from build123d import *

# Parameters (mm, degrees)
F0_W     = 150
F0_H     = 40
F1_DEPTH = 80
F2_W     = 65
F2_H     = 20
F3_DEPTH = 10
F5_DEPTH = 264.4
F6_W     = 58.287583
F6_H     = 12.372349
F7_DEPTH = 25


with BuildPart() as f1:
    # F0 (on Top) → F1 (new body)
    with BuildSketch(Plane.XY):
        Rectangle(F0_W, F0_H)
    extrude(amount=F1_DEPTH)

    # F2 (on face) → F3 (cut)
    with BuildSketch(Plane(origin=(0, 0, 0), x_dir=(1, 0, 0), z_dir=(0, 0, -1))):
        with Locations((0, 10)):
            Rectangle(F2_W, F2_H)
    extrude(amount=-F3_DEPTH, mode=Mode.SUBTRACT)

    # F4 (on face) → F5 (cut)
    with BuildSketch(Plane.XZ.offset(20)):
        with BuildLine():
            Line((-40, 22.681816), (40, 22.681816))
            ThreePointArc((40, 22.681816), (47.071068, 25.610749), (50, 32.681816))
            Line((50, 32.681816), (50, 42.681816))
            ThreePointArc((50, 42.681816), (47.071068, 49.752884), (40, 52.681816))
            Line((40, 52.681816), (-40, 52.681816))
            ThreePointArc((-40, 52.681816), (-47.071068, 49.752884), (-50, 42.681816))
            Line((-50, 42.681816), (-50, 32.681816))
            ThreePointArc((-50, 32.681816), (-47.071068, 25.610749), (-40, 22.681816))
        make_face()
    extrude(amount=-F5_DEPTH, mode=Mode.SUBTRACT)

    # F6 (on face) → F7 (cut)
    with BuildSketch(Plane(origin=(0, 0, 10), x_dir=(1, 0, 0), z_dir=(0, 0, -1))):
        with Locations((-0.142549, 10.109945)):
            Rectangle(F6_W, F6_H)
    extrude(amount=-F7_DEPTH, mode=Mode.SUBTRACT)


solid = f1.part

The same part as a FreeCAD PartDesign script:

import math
import FreeCAD as App
import Part
import Sketcher

doc = App.newDocument("Part")
body = doc.addObject("PartDesign::Body", "Body")

# Sketch on XY plane
sketch1 = body.newObject("Sketcher::SketchObject", "Sketch")
sketch1.AttachmentSupport = (doc.getObject("XY_Plane"), [""])
sketch1.MapMode = "FlatFace"
sketch1.addGeometry(Part.LineSegment(App.Vector(-75, 20, 0), App.Vector(-75, -20, 0)), False)
sketch1.addGeometry(Part.LineSegment(App.Vector(-75, -20, 0), App.Vector(75, -20, 0)), False)
sketch1.addGeometry(Part.LineSegment(App.Vector(75, -20, 0), App.Vector(75, 20, 0)), False)
sketch1.addGeometry(Part.LineSegment(App.Vector(75, 20, 0), App.Vector(-75, 20, 0)), False)
sketch1.addConstraint(Sketcher.Constraint("Coincident", 0, 2, 1, 1))
sketch1.addConstraint(Sketcher.Constraint("Coincident", 1, 2, 2, 1))
sketch1.addConstraint(Sketcher.Constraint("Coincident", 2, 2, 3, 1))
sketch1.addConstraint(Sketcher.Constraint("Coincident", 3, 2, 0, 1))
sketch1.addConstraint(Sketcher.Constraint("Vertical", 0))
sketch1.addConstraint(Sketcher.Constraint("Horizontal", 1))
sketch1.addConstraint(Sketcher.Constraint("Vertical", 2))
sketch1.addConstraint(Sketcher.Constraint("Horizontal", 3))
sketch1.addConstraint(Sketcher.Constraint("Symmetric", 0, 2, 2, 2, -1, 1))
sketch1.addConstraint(Sketcher.Constraint("DistanceX", 1, 1, 1, 2, 150.0))
sketch1.addConstraint(Sketcher.Constraint("DistanceY", 0, 2, 0, 1, 40.0))
pad1 = body.newObject("PartDesign::Pad", "Pad")
pad1.Profile = sketch1
pad1.Length = 80

# Sketch on XY plane
sketch2 = body.newObject("Sketcher::SketchObject", "Sketch001")
sketch2.AttachmentSupport = (doc.getObject("XY_Plane"), [""])
sketch2.MapMode = "FlatFace"
sketch2.addGeometry(Part.LineSegment(App.Vector(-32, -20, 0), App.Vector(-32, 0, 0)), False)
sketch2.addGeometry(Part.LineSegment(App.Vector(-32, 0, 0), App.Vector(32, 0, 0)), False)
sketch2.addGeometry(Part.LineSegment(App.Vector(32, 0, 0), App.Vector(32, -20, 0)), False)
sketch2.addGeometry(Part.LineSegment(App.Vector(32, -20, 0), App.Vector(-32, -20, 0)), False)
sketch2.addConstraint(Sketcher.Constraint("Coincident", 0, 2, 1, 1))
sketch2.addConstraint(Sketcher.Constraint("Coincident", 1, 2, 2, 1))
sketch2.addConstraint(Sketcher.Constraint("Coincident", 2, 2, 3, 1))
sketch2.addConstraint(Sketcher.Constraint("Coincident", 3, 2, 0, 1))
sketch2.addConstraint(Sketcher.Constraint("Vertical", 0))
sketch2.addConstraint(Sketcher.Constraint("Horizontal", 1))
sketch2.addConstraint(Sketcher.Constraint("Vertical", 2))
sketch2.addConstraint(Sketcher.Constraint("Horizontal", 3))
sketch2.addConstraint(Sketcher.Constraint("Symmetric", 0, 2, 1, 2, -1, 1))
sketch2.addConstraint(Sketcher.Constraint("DistanceX", 1, 1, 1, 2, 65.0))
sketch2.addConstraint(Sketcher.Constraint("DistanceY", 0, 1, 0, 2, 20.0))
pocket1 = body.newObject("PartDesign::Pocket", "Pocket")
pocket1.Profile = sketch2
pocket1.Length = 10
pocket1.Reversed = True

# Sketch on XZ plane
sketch3 = body.newObject("Sketcher::SketchObject", "Sketch002")
sketch3.AttachmentSupport = (doc.getObject("XZ_Plane"), [""])
sketch3.MapMode = "FlatFace"
sketch3.AttachmentOffset = App.Placement(App.Vector(0, 0, 20), App.Rotation())
sketch3.addGeometry(Part.LineSegment(App.Vector(-40, 23, 0), App.Vector(40, 23, 0)), False)
sketch3.addGeometry(Part.ArcOfCircle(Part.Circle(App.Vector(40, 33, 0), App.Vector(0, 0, 1), 10), math.radians(-90), math.radians(0)), False)
sketch3.addGeometry(Part.LineSegment(App.Vector(50, 33, 0), App.Vector(50, 43, 0)), False)
sketch3.addGeometry(Part.ArcOfCircle(Part.Circle(App.Vector(40, 43, 0), App.Vector(0, 0, 1), 10), math.radians(0), math.radians(90)), False)
sketch3.addGeometry(Part.LineSegment(App.Vector(40, 53, 0), App.Vector(-40, 53, 0)), False)
sketch3.addGeometry(Part.ArcOfCircle(Part.Circle(App.Vector(-40, 43, 0), App.Vector(0, 0, 1), 10), math.radians(90), math.radians(180)), False)
sketch3.addGeometry(Part.LineSegment(App.Vector(-50, 43, 0), App.Vector(-50, 33, 0)), False)
sketch3.addGeometry(Part.ArcOfCircle(Part.Circle(App.Vector(-40, 33, 0), App.Vector(0, 0, 1), 10), math.radians(-180), math.radians(-90)), False)
sketch3.addConstraint(Sketcher.Constraint("Tangent", 0, 2, 1, 1))
sketch3.addConstraint(Sketcher.Constraint("Tangent", 1, 2, 2, 1))
sketch3.addConstraint(Sketcher.Constraint("Tangent", 2, 2, 3, 1))
sketch3.addConstraint(Sketcher.Constraint("Tangent", 3, 2, 4, 1))
sketch3.addConstraint(Sketcher.Constraint("Tangent", 4, 2, 5, 1))
sketch3.addConstraint(Sketcher.Constraint("Tangent", 5, 2, 6, 1))
sketch3.addConstraint(Sketcher.Constraint("Tangent", 6, 2, 7, 1))
sketch3.addConstraint(Sketcher.Constraint("Tangent", 7, 2, 0, 1))
sketch3.addConstraint(Sketcher.Constraint("Horizontal", 0))
sketch3.addConstraint(Sketcher.Constraint("Vertical", 2))
sketch3.addConstraint(Sketcher.Constraint("Horizontal", 4))
sketch3.addConstraint(Sketcher.Constraint("Vertical", 6))
sketch3.addConstraint(Sketcher.Constraint("Equal", 1, 3))
sketch3.addConstraint(Sketcher.Constraint("Equal", 3, 5))
sketch3.addConstraint(Sketcher.Constraint("Equal", 5, 7))
sketch3.addConstraint(Sketcher.Constraint("Radius", 1, 10.000001))
sketch3.addConstraint(Sketcher.Constraint("DistanceX", 0, 1, 0, 2, 80.0))
sketch3.addConstraint(Sketcher.Constraint("DistanceY", 2, 1, 2, 2, 10.0))
sketch3.addConstraint(Sketcher.Constraint("DistanceX", -1, 1, 1, 3, 39.999999))
sketch3.addConstraint(Sketcher.Constraint("DistanceY", -1, 1, 1, 3, 32.681817))
pocket2 = body.newObject("PartDesign::Pocket", "Pocket001")
pocket2.Profile = sketch3
pocket2.Length = 264.4

# Sketch on XY plane
sketch4 = body.newObject("Sketcher::SketchObject", "Sketch003")
sketch4.AttachmentSupport = (doc.getObject("XY_Plane"), [""])
sketch4.MapMode = "FlatFace"
sketch4.AttachmentOffset = App.Placement(App.Vector(0, 0, 10), App.Rotation())
sketch4.addGeometry(Part.LineSegment(App.Vector(-29, -16, 0), App.Vector(-29, -4, 0)), False)
sketch4.addGeometry(Part.LineSegment(App.Vector(-29, -4, 0), App.Vector(29, -4, 0)), False)
sketch4.addGeometry(Part.LineSegment(App.Vector(29, -4, 0), App.Vector(29, -16, 0)), False)
sketch4.addGeometry(Part.LineSegment(App.Vector(29, -16, 0), App.Vector(-29, -16, 0)), False)
sketch4.addConstraint(Sketcher.Constraint("Coincident", 0, 2, 1, 1))
sketch4.addConstraint(Sketcher.Constraint("Coincident", 1, 2, 2, 1))
sketch4.addConstraint(Sketcher.Constraint("Coincident", 2, 2, 3, 1))
sketch4.addConstraint(Sketcher.Constraint("Coincident", 3, 2, 0, 1))
sketch4.addConstraint(Sketcher.Constraint("Vertical", 0))
sketch4.addConstraint(Sketcher.Constraint("Horizontal", 1))
sketch4.addConstraint(Sketcher.Constraint("Vertical", 2))
sketch4.addConstraint(Sketcher.Constraint("Horizontal", 3))
sketch4.addConstraint(Sketcher.Constraint("DistanceY", 0, 1, 0, 2, 12.372349))
sketch4.addConstraint(Sketcher.Constraint("DistanceX", 1, 1, 1, 2, 58.287583))
sketch4.addConstraint(Sketcher.Constraint("DistanceX", 0, 2, -1, 1, 29.286341))
sketch4.addConstraint(Sketcher.Constraint("DistanceY", 0, 2, -1, 1, 3.92377))
pocket3 = body.newObject("PartDesign::Pocket", "Pocket002")
pocket3.Profile = sketch4
pocket3.Length = 25
pocket3.Reversed = True

doc.recompute()
